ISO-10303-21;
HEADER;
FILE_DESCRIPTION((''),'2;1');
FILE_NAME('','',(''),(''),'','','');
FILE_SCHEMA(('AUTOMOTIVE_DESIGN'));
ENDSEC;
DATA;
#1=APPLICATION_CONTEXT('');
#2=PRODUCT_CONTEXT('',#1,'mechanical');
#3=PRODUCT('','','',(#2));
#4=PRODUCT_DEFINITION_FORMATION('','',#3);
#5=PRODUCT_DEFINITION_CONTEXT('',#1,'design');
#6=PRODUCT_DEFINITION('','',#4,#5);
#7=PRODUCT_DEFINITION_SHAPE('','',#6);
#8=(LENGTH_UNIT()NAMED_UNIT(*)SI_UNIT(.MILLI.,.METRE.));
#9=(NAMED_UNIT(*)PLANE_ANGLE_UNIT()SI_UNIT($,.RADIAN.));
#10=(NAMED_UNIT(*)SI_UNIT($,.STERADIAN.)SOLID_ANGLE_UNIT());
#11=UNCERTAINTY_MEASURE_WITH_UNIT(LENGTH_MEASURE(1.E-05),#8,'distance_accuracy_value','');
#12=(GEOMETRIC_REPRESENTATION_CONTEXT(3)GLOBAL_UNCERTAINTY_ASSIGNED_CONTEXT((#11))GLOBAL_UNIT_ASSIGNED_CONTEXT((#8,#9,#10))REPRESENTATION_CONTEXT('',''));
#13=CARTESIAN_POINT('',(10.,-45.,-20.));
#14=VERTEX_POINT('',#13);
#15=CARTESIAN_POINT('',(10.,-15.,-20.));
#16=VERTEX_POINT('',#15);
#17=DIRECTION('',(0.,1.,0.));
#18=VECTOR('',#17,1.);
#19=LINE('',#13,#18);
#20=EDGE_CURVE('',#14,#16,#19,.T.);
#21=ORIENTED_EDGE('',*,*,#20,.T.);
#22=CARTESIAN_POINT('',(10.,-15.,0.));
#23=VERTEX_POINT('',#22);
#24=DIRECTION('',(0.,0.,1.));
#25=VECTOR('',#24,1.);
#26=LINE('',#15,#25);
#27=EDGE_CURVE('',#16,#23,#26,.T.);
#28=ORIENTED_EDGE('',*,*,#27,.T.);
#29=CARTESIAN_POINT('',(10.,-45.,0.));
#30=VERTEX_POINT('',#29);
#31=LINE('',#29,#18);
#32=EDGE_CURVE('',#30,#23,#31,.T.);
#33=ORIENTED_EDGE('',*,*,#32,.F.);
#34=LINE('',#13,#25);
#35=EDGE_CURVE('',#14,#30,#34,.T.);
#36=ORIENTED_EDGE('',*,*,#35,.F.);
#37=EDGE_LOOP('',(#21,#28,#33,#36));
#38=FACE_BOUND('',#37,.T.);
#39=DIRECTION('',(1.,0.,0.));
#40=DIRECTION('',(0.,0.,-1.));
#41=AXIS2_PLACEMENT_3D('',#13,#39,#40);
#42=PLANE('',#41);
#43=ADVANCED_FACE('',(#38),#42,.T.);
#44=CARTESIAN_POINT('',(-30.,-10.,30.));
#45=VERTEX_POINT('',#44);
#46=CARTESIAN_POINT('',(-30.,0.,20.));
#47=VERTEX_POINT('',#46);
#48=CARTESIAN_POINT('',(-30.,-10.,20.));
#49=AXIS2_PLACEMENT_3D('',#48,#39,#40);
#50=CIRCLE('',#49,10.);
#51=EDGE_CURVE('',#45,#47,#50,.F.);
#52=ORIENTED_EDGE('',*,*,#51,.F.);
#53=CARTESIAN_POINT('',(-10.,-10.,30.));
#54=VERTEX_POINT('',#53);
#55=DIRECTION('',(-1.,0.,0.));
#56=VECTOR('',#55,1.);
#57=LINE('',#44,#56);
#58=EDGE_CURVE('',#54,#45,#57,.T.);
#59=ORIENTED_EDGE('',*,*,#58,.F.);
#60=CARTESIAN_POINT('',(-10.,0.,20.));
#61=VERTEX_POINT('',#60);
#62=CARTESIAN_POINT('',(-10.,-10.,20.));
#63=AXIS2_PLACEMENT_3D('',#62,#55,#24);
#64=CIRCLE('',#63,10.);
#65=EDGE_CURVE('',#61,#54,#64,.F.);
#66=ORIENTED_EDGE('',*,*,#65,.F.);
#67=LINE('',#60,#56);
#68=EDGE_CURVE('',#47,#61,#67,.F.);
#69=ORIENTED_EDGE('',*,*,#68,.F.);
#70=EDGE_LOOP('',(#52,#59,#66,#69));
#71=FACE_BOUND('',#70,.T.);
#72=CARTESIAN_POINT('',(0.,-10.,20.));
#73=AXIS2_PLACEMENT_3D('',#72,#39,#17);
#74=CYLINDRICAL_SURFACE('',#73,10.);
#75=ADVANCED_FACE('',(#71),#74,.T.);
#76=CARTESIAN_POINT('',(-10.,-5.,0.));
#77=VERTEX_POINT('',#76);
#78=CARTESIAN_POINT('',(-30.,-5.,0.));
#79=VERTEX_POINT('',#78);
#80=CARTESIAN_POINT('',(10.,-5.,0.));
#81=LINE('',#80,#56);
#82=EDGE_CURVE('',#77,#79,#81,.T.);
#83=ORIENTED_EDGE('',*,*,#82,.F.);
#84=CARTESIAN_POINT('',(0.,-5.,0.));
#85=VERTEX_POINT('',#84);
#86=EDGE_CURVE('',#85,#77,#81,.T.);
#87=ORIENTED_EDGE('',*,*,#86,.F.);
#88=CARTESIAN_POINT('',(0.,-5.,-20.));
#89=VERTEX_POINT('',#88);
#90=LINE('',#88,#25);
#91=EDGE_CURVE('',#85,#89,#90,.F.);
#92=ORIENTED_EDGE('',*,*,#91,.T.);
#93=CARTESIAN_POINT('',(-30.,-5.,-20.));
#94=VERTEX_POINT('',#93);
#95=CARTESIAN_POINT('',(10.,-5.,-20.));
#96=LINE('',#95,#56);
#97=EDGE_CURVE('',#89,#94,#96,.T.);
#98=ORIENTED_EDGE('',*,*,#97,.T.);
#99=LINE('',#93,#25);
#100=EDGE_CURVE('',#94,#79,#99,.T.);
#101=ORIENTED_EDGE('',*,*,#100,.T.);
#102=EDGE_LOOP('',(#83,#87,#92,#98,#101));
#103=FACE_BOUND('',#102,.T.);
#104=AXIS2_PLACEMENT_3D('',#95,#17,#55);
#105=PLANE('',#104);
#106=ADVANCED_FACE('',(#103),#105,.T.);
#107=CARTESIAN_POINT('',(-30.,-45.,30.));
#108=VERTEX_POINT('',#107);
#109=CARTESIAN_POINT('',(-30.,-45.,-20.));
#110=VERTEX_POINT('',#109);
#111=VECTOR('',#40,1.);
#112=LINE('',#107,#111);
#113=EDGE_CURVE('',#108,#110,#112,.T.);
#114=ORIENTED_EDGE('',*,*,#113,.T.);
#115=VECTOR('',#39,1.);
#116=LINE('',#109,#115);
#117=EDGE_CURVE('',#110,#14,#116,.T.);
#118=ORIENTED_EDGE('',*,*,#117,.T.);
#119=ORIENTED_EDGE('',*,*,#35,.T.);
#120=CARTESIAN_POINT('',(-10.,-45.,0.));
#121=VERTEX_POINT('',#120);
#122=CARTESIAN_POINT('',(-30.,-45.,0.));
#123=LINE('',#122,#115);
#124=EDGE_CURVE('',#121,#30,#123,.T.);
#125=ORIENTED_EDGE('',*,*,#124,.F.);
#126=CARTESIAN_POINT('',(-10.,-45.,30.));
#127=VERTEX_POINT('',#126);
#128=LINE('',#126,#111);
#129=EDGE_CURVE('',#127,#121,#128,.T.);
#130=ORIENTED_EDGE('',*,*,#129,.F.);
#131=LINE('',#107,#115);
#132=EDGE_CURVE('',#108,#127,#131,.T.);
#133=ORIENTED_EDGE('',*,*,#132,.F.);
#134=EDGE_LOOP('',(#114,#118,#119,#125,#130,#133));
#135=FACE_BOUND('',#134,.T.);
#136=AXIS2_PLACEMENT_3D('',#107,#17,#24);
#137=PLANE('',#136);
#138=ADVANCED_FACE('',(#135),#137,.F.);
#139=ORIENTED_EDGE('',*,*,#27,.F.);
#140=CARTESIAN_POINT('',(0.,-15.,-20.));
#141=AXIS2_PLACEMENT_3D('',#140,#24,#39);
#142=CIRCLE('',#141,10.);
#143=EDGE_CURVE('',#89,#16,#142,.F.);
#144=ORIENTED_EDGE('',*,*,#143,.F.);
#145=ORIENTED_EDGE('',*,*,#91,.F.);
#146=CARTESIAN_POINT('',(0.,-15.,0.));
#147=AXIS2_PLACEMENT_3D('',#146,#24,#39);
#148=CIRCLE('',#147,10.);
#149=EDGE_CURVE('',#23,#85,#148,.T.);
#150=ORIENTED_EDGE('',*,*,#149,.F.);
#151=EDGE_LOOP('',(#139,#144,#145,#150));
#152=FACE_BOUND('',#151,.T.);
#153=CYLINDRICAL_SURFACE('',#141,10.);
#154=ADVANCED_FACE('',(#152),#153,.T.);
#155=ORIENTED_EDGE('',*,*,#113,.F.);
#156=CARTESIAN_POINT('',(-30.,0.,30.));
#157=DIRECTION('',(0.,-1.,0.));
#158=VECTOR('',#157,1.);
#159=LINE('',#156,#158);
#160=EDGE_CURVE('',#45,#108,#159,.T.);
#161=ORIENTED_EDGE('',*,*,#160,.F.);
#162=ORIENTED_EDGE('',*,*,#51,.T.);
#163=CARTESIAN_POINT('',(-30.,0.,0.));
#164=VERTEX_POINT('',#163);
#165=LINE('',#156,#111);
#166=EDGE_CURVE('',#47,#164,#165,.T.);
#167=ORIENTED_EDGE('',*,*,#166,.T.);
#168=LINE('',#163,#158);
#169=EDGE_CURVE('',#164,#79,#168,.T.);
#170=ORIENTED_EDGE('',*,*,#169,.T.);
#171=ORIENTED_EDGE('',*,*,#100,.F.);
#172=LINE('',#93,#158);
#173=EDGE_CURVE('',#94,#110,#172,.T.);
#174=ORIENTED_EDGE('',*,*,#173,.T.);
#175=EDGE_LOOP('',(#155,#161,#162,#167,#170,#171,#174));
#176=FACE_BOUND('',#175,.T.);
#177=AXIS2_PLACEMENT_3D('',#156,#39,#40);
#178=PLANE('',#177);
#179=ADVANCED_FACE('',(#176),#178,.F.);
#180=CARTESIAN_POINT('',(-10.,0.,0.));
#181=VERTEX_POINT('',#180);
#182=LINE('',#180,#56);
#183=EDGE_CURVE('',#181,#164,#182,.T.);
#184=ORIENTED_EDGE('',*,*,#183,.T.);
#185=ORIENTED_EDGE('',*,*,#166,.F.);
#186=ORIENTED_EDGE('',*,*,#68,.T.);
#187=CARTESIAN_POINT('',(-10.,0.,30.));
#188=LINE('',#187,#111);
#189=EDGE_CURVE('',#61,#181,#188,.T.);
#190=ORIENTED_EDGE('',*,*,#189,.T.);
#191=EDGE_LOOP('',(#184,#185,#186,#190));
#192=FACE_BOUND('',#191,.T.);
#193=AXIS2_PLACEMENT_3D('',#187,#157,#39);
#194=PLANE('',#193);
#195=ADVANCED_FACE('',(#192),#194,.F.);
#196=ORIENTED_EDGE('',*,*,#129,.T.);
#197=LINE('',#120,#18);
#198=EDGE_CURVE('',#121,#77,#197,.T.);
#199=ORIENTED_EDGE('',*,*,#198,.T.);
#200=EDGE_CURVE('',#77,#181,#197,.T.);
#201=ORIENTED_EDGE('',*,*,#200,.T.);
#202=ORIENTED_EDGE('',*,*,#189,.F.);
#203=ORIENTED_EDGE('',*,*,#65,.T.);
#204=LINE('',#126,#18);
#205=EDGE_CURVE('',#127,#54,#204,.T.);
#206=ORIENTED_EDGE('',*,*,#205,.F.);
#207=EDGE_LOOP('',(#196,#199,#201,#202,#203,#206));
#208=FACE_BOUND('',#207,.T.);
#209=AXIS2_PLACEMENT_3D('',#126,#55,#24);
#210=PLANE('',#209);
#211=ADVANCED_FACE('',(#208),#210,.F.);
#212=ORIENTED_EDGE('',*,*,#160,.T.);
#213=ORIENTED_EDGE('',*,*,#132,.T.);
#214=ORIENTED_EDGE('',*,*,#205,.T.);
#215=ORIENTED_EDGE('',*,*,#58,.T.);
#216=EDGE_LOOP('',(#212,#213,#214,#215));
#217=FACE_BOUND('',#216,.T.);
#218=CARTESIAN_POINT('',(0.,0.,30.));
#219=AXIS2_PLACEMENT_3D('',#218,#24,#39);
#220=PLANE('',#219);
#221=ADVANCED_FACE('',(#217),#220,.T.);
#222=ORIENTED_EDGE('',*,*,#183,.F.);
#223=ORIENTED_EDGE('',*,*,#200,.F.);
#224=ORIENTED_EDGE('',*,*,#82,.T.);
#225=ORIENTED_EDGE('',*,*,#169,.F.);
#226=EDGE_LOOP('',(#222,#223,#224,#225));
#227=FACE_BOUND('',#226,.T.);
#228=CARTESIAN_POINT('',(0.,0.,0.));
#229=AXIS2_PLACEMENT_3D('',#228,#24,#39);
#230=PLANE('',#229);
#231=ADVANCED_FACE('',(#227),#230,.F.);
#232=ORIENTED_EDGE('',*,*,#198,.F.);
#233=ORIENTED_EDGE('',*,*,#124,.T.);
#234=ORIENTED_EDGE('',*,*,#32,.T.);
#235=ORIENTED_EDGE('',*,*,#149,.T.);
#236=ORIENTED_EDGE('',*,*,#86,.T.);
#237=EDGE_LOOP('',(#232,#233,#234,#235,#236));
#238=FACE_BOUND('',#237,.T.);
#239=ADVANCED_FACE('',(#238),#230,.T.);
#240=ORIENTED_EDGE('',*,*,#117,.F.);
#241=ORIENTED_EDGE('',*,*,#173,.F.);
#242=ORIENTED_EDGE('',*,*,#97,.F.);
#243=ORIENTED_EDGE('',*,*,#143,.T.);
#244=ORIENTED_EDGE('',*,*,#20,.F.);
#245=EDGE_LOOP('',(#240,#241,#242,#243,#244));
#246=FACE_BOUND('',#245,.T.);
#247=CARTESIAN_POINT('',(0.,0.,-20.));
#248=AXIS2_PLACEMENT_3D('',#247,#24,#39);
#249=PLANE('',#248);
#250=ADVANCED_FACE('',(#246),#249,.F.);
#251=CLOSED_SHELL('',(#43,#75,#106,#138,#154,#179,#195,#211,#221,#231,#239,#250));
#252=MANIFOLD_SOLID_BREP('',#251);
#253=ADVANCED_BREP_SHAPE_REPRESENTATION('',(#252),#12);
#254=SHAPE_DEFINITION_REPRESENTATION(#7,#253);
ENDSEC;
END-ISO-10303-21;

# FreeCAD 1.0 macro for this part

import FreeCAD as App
import Part
import Sketcher
from FreeCAD import Vector


def edges_at(feature, points):
    """Names of the edges that pass closest to the given points."""
    edges = feature.Shape.Edges
    near = lambda p: min(range(len(edges)), key=lambda i: edges[i].distToShape(Part.Vertex(*p))[0])
    return sorted({f"Edge{near(p) + 1}" for p in points})


def add_polygon(sketch, points):
    """Adds a closed chain of lines whose ends are joined by coincident constraints."""
    first, n = sketch.GeometryCount, len(points)
    for a, b in zip(points, points[1:] + points[:1]):
        sketch.addGeometry(Part.LineSegment(App.Vector(*a, 0), App.Vector(*b, 0)), False)
    for i in range(n):
        sketch.addConstraint(Sketcher.Constraint("Coincident", first + i, 2, first + (i + 1) % n, 1))

doc = App.newDocument("Part")
body = doc.addObject("PartDesign::Body", "Body")

sketch1 = doc.addObject("Sketcher::SketchObject", "Sketch")
body.addObject(sketch1)
sketch1.AttachmentSupport = (doc.XY_Plane, [""])
sketch1.MapMode = "FlatFace"
add_polygon(sketch1, [(-30, 0), (-30, -45), (-10, -45), (-10, 0)])
sketch1.addConstraint([
    Sketcher.Constraint("Vertical", 0),
    Sketcher.Constraint("Horizontal", 1),
    Sketcher.Constraint("Vertical", 2),
    Sketcher.Constraint("Horizontal", 3),
    Sketcher.Constraint("PointOnObject", 2, 2, -1),
    Sketcher.Constraint("DistanceX", 1, 1, 1, 2, 20.0),
    Sketcher.Constraint("DistanceY", 0, 2, 0, 1, 45.0),
    Sketcher.Constraint("DistanceX", 0, 2, -1, 1, 30.0),
])
pad1 = doc.addObject("PartDesign::Pad", "Pad")
body.addObject(pad1)
pad1.Profile = sketch1
pad1.Length = 30

sketch2 = doc.addObject("Sketcher::SketchObject", "Sketch001")
body.addObject(sketch2)
sketch2.AttachmentSupport = (doc.XY_Plane, [""])
sketch2.MapMode = "FlatFace"
add_polygon(sketch2, [(-30, -5), (-30, -45), (10, -45), (10, -5)])
sketch2.addConstraint([
    Sketcher.Constraint("Vertical", 0),
    Sketcher.Constraint("Horizontal", 1),
    Sketcher.Constraint("Vertical", 2),
    Sketcher.Constraint("Horizontal", 3),
    Sketcher.Constraint("Equal", 3, 0),
    Sketcher.Constraint("DistanceX", 1, 1, 1, 2, 40.0),
    Sketcher.Constraint("DistanceX", 0, 2, -1, 1, 30.0),
    Sketcher.Constraint("DistanceY", 0, 2, -1, 1, 45.0),
])
pad2 = doc.addObject("PartDesign::Pad", "Pad001")
body.addObject(pad2)
pad2.Profile = sketch2
pad2.Length = 20
pad2.Reversed = True
doc.recompute()

fillet = doc.addObject("PartDesign::Fillet", "Fillet")
body.addObject(fillet)
fillet.Base = (pad2, edges_at(pad2, [(10, -5, -10), (-20, 0, 30)]))
fillet.Radius = 10

doc.recompute()
